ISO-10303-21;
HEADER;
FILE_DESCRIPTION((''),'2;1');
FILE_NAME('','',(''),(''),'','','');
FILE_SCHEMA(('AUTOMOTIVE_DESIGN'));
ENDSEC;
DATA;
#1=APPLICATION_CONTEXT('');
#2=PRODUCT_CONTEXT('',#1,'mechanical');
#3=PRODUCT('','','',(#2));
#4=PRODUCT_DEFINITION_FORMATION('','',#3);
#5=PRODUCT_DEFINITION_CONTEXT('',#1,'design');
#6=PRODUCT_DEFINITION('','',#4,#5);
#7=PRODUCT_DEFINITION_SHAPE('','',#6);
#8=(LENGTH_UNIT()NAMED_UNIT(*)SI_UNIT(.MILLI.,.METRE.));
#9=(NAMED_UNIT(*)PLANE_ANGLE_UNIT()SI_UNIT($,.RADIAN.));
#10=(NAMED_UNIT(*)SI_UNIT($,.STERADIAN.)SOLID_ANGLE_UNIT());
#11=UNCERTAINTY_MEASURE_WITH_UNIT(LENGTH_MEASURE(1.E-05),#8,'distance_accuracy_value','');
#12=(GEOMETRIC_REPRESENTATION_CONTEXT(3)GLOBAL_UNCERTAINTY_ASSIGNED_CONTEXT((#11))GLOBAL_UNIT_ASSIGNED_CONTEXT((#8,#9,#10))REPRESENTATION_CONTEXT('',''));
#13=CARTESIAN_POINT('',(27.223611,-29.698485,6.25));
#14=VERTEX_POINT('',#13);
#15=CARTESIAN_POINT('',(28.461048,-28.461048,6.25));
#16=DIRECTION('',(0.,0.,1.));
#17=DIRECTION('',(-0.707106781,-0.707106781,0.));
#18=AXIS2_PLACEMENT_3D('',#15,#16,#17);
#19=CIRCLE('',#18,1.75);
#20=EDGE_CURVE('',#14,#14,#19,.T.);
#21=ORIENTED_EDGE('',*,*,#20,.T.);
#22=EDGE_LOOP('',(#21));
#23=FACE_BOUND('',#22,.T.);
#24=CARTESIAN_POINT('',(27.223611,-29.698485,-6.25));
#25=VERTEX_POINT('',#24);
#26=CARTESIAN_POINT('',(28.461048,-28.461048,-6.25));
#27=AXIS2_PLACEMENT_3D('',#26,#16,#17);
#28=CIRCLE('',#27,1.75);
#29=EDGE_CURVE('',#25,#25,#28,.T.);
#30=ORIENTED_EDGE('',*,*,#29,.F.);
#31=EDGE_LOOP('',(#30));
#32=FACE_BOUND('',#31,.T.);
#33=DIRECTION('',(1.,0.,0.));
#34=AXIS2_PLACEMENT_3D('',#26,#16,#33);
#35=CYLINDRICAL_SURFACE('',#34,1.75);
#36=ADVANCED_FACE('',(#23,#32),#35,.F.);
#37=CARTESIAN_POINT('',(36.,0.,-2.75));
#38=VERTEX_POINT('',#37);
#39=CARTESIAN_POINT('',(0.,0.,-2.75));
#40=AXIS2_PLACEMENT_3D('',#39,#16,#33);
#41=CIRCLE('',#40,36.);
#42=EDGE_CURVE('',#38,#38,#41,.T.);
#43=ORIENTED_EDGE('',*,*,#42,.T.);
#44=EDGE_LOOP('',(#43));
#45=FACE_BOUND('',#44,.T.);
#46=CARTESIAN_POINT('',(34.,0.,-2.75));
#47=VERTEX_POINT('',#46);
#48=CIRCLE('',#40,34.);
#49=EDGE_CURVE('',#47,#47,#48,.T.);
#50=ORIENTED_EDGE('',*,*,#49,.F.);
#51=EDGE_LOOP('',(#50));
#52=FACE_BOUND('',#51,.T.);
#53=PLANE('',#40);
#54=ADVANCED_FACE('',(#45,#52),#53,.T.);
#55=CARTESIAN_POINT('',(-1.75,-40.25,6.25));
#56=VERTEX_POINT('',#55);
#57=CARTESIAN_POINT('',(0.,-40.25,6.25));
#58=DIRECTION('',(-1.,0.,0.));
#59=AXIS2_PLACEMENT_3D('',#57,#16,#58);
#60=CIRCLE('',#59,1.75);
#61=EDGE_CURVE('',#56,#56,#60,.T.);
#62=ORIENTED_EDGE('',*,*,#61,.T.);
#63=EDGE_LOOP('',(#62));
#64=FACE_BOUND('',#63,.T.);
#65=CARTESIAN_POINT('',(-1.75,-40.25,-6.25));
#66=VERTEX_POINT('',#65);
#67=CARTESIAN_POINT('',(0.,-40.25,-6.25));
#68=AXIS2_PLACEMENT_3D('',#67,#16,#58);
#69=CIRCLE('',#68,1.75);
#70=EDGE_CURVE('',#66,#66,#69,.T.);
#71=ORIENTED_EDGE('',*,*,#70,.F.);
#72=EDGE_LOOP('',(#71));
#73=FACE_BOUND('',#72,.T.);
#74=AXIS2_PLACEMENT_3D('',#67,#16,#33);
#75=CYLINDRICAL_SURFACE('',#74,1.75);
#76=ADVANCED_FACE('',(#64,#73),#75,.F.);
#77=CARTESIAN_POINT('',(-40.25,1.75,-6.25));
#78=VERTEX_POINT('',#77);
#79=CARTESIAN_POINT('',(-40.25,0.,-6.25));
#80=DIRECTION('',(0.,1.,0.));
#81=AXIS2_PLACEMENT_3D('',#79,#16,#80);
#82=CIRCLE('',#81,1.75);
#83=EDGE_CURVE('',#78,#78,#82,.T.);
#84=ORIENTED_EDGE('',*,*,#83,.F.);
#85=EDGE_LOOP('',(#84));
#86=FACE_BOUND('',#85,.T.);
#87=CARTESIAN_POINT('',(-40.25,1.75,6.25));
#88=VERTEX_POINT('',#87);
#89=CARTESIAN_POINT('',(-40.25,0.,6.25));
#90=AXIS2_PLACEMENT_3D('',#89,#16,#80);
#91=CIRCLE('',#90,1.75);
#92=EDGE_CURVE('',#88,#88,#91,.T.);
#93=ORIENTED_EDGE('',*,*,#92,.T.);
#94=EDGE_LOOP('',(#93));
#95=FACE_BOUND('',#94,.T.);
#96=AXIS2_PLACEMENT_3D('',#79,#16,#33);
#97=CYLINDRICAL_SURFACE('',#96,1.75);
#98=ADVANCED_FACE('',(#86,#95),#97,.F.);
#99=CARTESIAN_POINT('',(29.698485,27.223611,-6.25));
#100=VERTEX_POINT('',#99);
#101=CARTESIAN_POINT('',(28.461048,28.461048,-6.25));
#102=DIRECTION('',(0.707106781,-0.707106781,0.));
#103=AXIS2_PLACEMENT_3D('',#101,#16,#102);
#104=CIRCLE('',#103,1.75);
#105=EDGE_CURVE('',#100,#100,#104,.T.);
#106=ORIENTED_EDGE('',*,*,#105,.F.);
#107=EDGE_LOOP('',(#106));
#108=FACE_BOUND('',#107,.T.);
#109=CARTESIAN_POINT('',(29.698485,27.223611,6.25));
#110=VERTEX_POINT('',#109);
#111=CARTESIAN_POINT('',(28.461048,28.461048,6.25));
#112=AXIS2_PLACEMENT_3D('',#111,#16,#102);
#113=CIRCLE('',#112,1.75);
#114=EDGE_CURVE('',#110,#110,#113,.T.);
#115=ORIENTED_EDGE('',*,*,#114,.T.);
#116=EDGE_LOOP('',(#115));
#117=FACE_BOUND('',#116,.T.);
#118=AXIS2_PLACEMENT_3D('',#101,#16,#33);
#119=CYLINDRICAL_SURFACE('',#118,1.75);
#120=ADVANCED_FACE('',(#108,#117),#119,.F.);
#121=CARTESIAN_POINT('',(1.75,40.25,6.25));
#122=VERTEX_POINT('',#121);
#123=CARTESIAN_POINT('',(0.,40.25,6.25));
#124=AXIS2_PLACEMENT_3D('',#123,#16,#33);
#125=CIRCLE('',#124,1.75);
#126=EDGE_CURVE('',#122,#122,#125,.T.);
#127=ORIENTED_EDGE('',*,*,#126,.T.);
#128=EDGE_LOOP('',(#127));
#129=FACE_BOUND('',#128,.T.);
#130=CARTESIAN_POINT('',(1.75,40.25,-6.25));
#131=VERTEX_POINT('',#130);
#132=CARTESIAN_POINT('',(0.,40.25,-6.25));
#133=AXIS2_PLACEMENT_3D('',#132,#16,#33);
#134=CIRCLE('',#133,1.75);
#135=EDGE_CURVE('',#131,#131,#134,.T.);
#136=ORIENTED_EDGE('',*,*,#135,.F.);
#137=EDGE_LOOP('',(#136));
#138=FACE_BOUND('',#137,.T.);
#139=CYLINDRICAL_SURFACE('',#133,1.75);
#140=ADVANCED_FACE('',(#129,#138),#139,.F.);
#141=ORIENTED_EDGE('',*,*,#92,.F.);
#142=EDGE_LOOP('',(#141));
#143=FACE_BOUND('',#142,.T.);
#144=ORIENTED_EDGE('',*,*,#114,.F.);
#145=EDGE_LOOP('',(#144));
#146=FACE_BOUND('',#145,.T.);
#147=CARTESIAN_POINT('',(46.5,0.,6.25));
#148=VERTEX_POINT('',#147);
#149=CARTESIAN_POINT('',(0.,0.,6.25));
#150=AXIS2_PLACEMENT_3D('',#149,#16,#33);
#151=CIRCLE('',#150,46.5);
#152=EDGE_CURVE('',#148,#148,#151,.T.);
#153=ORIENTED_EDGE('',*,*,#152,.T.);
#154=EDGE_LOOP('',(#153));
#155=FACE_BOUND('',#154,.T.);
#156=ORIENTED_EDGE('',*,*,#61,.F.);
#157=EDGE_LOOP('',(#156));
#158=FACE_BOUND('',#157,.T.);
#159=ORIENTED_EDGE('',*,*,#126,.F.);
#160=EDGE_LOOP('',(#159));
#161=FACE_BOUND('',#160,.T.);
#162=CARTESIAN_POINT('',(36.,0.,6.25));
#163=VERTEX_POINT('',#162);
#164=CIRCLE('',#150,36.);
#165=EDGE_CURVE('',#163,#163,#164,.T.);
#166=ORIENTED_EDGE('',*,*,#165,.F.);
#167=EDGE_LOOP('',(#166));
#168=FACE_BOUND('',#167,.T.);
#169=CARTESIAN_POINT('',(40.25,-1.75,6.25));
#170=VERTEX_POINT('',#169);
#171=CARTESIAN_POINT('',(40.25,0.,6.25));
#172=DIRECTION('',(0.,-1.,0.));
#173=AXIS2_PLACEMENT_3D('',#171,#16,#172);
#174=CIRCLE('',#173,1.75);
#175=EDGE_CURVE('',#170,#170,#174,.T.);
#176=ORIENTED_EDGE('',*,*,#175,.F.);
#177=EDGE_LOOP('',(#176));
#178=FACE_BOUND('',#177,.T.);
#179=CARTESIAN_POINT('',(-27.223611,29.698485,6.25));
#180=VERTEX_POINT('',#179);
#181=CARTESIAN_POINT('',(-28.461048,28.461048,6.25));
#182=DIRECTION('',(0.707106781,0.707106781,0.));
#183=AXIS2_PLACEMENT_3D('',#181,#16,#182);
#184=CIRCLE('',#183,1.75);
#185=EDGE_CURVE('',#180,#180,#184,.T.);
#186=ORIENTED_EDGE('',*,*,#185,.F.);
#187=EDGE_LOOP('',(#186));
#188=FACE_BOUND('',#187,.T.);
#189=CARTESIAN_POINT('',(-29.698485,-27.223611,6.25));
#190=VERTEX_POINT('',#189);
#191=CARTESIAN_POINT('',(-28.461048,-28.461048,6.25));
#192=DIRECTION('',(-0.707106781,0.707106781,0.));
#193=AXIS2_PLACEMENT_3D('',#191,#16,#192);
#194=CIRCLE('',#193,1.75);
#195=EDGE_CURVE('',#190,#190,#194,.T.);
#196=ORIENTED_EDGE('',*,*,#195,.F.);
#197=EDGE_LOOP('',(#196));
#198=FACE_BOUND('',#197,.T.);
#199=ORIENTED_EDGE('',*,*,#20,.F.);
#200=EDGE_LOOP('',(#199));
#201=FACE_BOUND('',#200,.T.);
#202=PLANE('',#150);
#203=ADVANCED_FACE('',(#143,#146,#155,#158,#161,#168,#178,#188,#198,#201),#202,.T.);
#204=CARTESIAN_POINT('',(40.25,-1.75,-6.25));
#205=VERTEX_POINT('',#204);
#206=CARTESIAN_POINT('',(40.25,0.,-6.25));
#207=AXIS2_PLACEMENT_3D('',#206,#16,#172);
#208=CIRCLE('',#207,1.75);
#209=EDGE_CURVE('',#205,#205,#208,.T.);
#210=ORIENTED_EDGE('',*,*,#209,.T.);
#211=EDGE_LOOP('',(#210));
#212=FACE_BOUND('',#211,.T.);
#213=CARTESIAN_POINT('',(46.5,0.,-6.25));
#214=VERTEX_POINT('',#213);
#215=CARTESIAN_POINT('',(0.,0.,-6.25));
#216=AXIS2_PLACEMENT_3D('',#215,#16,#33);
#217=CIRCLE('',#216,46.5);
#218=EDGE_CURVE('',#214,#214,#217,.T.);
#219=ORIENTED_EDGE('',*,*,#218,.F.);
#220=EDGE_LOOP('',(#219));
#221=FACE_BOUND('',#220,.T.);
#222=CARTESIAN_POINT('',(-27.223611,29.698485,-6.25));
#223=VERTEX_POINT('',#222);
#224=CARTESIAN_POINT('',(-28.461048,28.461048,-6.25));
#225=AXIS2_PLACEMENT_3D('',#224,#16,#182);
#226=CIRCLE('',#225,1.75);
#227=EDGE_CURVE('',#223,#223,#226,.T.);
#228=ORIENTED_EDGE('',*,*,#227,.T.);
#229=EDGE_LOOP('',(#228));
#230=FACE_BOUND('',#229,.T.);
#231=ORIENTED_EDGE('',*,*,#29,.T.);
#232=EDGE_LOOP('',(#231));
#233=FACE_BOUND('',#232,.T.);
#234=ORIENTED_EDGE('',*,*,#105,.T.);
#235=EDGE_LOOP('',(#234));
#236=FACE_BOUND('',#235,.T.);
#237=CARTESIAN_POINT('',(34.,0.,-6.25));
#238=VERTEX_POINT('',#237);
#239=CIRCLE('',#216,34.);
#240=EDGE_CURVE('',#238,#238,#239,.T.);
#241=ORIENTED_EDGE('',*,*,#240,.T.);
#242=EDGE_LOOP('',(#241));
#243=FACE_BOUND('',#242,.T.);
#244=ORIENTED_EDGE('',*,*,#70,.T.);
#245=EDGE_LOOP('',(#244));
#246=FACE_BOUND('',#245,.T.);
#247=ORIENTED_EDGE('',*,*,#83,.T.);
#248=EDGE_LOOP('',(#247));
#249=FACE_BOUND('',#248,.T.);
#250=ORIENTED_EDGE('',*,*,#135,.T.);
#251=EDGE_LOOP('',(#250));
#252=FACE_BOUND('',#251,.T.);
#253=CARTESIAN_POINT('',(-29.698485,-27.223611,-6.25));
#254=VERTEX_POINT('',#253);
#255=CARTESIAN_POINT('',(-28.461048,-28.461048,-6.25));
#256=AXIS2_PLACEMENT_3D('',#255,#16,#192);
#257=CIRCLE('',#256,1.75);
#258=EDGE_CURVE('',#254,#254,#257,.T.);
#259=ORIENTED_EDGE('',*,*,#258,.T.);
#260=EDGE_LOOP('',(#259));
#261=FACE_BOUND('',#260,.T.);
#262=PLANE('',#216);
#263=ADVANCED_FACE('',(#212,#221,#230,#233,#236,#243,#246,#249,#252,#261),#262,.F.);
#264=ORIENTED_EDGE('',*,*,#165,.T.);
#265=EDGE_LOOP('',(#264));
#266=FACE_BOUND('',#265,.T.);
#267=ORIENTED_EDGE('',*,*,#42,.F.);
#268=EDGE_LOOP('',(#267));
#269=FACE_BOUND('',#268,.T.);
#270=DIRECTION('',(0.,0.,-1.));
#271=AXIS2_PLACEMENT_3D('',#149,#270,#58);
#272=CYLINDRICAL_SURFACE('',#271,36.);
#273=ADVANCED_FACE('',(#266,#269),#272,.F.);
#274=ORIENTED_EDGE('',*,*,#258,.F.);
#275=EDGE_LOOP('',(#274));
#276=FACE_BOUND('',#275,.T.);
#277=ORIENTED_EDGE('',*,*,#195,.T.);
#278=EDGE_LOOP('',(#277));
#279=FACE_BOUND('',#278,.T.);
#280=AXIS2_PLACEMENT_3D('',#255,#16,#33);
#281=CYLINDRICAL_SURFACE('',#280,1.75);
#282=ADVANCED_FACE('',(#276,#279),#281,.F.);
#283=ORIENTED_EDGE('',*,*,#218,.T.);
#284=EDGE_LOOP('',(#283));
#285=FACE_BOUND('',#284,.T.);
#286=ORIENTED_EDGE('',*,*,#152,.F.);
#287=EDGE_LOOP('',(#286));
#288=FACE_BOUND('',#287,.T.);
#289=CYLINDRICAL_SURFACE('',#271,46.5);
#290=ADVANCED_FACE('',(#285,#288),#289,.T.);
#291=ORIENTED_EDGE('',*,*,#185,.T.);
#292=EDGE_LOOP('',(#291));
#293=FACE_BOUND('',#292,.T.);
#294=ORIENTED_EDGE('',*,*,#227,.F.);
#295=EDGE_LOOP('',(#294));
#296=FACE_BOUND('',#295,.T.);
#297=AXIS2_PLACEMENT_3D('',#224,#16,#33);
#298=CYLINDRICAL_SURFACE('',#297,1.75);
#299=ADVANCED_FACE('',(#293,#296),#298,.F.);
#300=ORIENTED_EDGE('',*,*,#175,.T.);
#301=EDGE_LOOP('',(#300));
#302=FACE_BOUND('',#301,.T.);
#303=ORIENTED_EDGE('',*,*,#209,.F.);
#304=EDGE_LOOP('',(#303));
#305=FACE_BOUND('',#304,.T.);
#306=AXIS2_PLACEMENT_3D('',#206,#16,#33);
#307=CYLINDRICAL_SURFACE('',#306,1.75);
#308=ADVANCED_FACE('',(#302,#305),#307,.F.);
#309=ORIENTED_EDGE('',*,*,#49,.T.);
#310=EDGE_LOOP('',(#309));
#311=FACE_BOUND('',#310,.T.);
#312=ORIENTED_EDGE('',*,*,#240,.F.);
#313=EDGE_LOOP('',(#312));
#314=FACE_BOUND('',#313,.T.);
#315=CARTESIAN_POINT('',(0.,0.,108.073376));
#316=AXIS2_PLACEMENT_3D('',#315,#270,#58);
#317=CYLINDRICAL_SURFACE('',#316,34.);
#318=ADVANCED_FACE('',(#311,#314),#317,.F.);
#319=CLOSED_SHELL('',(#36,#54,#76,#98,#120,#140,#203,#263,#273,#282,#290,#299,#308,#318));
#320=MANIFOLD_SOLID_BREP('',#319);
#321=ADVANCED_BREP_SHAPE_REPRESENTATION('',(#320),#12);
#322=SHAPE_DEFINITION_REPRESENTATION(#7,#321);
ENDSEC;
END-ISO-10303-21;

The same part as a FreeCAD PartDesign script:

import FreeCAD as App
import Part
import Sketcher
from FreeCAD import Vector

doc = App.newDocument("Part")
params = doc.addObject("Spreadsheet::Sheet", "Params")
for row, (alias, value) in enumerate([
    ("sketch1_diameter", "93 mm"),
    ("sketch1_diameter2", "72 mm"),
    ("pad1_length", "12.5 mm"),
    ("sketch2_diameter", "72 mm"),
    ("sketch2_diameter2", "68 mm"),
    ("pad2_length", "3.5 mm"),
    ("sketch3_diameter", "3.5 mm"),
], start=1):
    params.set(f"A{row}", alias)
    params.set(f"B{row}", "=" + value)
    params.setAlias(f"B{row}", alias)

body = doc.addObject("PartDesign::Body", "Body")

sketch1 = body.newObject("Sketcher::SketchObject", "Sketch")
sketch1.AttachmentSupport = (doc.getObject("XY_Plane"), [""])
sketch1.MapMode = "FlatFace"
sketch1.addGeometry([
    Part.Circle(Vector(0, 0, 0), Vector(0, 0, 1), 46.5),
    Part.Circle(Vector(0, 0, 0), Vector(0, 0, 1), 36),
], False)
sketch1.addConstraint([
    Sketcher.Constraint("Coincident", 0, 3, -1, 1),
    Sketcher.Constraint("Coincident", 1, 3, -1, 1),
    Sketcher.Constraint("Diameter", 0, 93.0),
    Sketcher.Constraint("Diameter", 1, 72.0),
])
sketch1.setExpression("Constraints[2]", "Params.sketch1_diameter")
sketch1.setExpression("Constraints[3]", "Params.sketch1_diameter2")
pad1 = body.newObject("PartDesign::Pad", "Pad")
pad1.Profile = sketch1
pad1.setExpression("Length", "Params.pad1_length")
pad1.Midplane = True

sketch2 = body.newObject("Sketcher::SketchObject", "Sketch001")
sketch2.AttachmentSupport = (doc.getObject("XY_Plane"), [""])
sketch2.MapMode = "FlatFace"
sketch2.AttachmentOffset = App.Placement(Vector(0, 0, -6.25), App.Rotation())
sketch2.addGeometry([
    Part.Circle(Vector(0, 0, 0), Vector(0, 0, 1), 36),
    Part.Circle(Vector(0, 0, 0), Vector(0, 0, 1), 34),
], False)
sketch2.addConstraint([
    Sketcher.Constraint("Coincident", 0, 3, -1, 1),
    Sketcher.Constraint("Coincident", 1, 3, -1, 1),
    Sketcher.Constraint("Diameter", 0, 72.0),
    Sketcher.Constraint("Diameter", 1, 68.0),
])
sketch2.setExpression("Constraints[2]", "Params.sketch2_diameter")
sketch2.setExpression("Constraints[3]", "Params.sketch2_diameter2")
pad2 = body.newObject("PartDesign::Pad", "Pad001")
pad2.Profile = sketch2
pad2.setExpression("Length", "Params.pad2_length")

sketch3 = body.newObject("Sketcher::SketchObject", "Sketch002")
sketch3.AttachmentSupport = (doc.getObject("XY_Plane"), [""])
sketch3.MapMode = "FlatFace"
sketch3.AttachmentOffset = App.Placement(Vector(0, 0, 6.25), App.Rotation())
sketch3.addGeometry(Part.Circle(Vector(0, 40.25, 0), Vector(0, 0, 1), 1.75), False)
sketch3.addConstraint([
    Sketcher.Constraint("PointOnObject", 0, 3, -2),
    Sketcher.Constraint("Diameter", 0, 3.5),
    Sketcher.Constraint("DistanceY", -1, 1, 0, 3, 40.25),
])
sketch3.setExpression("Constraints[1]", "Params.sketch3_diameter")
pocket1 = body.newObject("PartDesign::Pocket", "Pocket")
pocket1.Profile = sketch3
pocket1.Type = "ThroughAll"
doc.recompute()

polarpattern = body.newObject("PartDesign::PolarPattern", "PolarPattern")
polarpattern.Originals = [pocket1]
polarpattern.Axis = (doc.getObject("Z_Axis"), [""])
polarpattern.Angle = 360
polarpattern.Occurrences = 8
body.Tip = polarpattern

doc.recompute()
